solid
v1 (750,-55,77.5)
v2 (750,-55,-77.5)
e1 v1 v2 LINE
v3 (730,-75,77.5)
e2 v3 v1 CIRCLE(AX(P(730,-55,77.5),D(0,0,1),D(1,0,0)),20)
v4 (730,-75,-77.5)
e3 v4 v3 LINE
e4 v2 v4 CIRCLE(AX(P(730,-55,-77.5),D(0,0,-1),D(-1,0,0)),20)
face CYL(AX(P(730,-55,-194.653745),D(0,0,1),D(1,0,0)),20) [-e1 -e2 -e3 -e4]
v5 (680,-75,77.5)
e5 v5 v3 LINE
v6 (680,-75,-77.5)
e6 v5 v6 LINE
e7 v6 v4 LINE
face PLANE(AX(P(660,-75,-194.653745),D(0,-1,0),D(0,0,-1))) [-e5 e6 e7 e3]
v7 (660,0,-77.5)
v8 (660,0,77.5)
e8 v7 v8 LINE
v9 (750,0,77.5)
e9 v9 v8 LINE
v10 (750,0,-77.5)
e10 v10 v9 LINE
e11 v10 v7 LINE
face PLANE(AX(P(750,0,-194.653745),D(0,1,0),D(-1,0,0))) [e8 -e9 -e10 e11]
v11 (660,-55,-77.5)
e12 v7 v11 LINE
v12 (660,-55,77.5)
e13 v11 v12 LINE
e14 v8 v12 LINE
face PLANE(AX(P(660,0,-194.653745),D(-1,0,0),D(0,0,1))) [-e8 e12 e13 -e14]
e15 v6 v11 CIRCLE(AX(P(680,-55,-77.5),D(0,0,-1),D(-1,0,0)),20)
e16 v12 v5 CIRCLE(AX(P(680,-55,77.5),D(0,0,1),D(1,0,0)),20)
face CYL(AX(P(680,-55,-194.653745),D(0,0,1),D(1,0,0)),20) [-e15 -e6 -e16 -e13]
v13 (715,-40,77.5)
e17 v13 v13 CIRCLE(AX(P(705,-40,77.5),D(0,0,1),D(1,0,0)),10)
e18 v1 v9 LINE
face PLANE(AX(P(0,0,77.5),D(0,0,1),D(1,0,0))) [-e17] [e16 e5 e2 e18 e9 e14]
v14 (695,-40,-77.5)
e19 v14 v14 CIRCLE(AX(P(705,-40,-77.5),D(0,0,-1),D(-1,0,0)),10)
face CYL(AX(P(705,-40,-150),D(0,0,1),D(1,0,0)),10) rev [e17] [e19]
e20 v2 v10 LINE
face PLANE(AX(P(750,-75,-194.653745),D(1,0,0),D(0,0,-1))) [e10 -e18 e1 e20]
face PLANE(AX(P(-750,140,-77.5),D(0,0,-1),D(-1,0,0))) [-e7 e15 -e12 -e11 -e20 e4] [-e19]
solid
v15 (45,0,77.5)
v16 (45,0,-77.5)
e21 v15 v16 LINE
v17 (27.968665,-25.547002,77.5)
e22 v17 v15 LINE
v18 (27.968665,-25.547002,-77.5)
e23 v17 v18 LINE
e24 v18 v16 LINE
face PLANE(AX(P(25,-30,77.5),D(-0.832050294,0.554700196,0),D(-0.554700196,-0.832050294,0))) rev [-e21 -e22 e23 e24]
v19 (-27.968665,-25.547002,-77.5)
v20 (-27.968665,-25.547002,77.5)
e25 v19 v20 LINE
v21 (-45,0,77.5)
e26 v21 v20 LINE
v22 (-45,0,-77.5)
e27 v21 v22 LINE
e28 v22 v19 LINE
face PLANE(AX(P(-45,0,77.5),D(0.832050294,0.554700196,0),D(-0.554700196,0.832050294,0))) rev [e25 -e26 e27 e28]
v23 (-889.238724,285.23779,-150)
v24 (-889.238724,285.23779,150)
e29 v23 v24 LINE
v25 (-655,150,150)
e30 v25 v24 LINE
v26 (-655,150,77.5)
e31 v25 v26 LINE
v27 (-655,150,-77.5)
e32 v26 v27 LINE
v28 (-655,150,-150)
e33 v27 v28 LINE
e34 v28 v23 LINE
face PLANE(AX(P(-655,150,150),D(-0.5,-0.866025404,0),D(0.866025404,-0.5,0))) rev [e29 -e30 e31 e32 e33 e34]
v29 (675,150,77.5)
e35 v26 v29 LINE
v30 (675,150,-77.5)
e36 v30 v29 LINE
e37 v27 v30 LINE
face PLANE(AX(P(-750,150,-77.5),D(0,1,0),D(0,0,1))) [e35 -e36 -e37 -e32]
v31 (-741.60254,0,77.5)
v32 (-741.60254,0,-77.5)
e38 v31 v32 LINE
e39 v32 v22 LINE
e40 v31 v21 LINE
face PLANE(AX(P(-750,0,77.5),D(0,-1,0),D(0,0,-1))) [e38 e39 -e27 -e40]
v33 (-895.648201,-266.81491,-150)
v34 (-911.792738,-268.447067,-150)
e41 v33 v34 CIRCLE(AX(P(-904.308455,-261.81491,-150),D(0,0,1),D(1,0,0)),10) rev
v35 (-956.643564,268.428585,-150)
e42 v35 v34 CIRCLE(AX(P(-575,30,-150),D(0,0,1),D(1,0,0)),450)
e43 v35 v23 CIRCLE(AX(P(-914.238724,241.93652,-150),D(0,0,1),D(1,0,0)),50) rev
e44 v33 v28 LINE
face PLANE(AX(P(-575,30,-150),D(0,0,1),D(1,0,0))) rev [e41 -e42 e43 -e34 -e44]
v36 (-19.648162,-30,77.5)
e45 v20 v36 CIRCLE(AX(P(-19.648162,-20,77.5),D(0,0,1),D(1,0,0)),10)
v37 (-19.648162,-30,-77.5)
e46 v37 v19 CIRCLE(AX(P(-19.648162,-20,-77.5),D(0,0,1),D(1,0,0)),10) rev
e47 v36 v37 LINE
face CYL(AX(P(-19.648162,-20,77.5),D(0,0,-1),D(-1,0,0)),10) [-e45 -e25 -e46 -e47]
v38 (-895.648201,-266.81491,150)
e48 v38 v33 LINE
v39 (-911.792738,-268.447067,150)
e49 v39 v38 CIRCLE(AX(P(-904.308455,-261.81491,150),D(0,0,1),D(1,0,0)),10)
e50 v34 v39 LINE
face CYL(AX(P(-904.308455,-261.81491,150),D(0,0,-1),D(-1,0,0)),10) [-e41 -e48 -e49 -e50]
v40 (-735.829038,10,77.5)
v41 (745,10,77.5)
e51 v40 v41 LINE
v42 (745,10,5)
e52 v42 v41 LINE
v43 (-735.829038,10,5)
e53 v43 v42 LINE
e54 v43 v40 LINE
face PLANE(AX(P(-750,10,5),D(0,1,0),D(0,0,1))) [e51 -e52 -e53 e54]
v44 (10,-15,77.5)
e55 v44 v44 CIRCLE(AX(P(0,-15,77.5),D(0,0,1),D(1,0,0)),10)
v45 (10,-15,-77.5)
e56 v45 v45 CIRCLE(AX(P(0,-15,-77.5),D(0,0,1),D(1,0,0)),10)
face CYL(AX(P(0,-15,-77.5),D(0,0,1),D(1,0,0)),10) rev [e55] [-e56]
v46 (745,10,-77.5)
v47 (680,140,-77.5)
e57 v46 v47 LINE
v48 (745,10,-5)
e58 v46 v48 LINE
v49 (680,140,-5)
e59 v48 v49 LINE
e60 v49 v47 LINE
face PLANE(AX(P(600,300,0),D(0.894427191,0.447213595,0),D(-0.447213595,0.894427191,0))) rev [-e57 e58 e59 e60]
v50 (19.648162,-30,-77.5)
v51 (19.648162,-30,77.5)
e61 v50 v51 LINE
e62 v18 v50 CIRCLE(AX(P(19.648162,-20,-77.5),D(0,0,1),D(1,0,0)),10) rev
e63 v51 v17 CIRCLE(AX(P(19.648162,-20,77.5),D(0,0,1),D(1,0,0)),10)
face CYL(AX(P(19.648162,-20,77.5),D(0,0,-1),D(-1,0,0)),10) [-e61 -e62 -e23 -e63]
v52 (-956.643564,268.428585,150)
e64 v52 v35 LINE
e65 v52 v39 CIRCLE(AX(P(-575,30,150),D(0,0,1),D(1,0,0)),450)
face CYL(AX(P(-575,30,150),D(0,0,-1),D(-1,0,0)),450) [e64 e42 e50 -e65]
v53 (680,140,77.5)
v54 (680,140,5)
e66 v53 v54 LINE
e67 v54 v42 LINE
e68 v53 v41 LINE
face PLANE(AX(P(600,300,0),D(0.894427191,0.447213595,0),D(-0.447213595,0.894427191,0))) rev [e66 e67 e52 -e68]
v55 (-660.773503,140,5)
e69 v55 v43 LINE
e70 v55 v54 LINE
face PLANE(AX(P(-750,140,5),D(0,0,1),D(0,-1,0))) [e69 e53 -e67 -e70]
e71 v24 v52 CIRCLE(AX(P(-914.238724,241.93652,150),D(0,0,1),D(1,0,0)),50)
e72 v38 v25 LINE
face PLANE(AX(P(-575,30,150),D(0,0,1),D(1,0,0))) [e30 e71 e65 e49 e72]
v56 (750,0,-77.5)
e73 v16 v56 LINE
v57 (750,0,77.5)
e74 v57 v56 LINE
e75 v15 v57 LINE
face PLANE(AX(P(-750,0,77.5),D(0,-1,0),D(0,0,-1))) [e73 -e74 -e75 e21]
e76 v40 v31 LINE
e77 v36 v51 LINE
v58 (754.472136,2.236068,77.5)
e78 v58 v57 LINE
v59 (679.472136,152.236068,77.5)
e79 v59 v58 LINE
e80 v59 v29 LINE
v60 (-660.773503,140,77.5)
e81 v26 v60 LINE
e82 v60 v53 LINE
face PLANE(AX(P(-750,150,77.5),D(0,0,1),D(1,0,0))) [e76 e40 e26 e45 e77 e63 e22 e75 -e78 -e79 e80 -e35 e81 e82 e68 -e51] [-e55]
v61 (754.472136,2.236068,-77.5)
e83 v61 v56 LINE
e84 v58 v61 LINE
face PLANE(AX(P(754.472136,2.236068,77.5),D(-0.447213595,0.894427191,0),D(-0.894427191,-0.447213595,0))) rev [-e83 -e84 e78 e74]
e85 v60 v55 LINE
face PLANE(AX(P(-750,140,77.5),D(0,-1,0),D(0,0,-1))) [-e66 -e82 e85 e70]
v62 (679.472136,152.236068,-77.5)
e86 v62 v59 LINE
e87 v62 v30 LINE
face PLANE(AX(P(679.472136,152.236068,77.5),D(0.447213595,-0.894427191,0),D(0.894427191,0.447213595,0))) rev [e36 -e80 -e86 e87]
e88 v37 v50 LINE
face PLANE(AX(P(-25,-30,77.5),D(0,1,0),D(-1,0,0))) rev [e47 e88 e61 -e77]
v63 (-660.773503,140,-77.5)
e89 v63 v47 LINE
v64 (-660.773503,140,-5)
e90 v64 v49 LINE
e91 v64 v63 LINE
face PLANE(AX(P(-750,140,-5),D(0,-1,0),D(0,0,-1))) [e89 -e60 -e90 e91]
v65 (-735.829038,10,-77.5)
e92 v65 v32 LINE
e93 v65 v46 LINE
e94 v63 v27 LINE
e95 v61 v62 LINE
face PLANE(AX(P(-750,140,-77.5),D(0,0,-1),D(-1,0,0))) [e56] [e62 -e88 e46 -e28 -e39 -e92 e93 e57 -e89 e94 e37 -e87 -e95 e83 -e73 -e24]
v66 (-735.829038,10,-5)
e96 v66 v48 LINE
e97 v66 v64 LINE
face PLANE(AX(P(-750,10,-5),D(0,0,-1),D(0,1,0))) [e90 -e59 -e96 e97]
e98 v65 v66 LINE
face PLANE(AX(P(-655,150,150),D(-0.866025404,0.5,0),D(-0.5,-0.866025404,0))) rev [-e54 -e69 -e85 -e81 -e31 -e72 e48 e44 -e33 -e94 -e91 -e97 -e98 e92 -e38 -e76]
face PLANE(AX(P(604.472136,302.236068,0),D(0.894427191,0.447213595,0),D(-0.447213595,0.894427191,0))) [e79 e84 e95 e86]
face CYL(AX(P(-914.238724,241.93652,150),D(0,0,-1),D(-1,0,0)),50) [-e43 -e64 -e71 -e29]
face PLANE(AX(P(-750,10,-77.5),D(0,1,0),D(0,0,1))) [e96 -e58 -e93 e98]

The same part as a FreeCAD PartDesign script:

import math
import FreeCAD as App
import Part
import Sketcher
from FreeCAD import Vector
Q = App.Units.Quantity


def edges_at(feature, points):
    """Names of the edges that pass closest to the given points."""
    edges = feature.Shape.Edges
    near = lambda p: min(range(len(edges)), key=lambda i: edges[i].distToShape(Part.Vertex(*p))[0])
    return sorted({f"Edge{near(p) + 1}" for p in points})

doc = App.newDocument("Part")
params = doc.addObject("Spreadsheet::Sheet", "Params")
for row, (alias, value) in enumerate([
    ("sketch1_width", "90 mm"),
    ("sketch1_width2", "50 mm"),
    ("pad1_length", "155 mm"),
    ("fillet_radius", "10 mm"),
    ("sketch2_diameter", "20 mm"),
    ("sketch3_width", "10 mm"),
    ("sketch3_width2", "130 mm"),
    ("sketch3_height", "155 mm"),
    ("sketch3_height2", "72.5 mm"),
    ("pad2_length", "750 mm"),
    ("pad2_length2", "750 mm"),
    ("sketch4_radius", "450 mm"),
    ("pad3_length", "300 mm"),
    ("fillet2_radius", "50 mm"),
    ("fillet3_radius", "10 mm"),
    ("sketch5_width", "75 mm"),
    ("sketch5_height", "150 mm"),
    ("pocket2_length", "300 mm"),
    ("sketch6_width", "155 mm"),
    ("pad4_length", "5 mm"),
    ("sketch7_width", "90 mm"),
    ("sketch7_height", "75 mm"),
    ("pad5_length", "155 mm"),
    ("fillet4_radius", "20 mm"),
    ("sketch8_diameter", "20 mm"),
], start=1):
    params.set(f"A{row}", alias)
    params.set(f"B{row}", "=" + value)
    params.setAlias(f"B{row}", alias)

body = doc.addObject("PartDesign::Body", "Body")

sketch1 = doc.addObject("Sketcher::SketchObject", "Sketch")
body.addObject(sketch1)
sketch1.AttachmentSupport = (doc.XY_Plane, [""])
sketch1.MapMode = "FlatFace"
sketch1.addGeometry(Part.LineSegment(Vector(45, 0, 0), Vector(-45, 0, 0)), False)
sketch1.addGeometry(Part.LineSegment(Vector(-45, 0, 0), Vector(-25, -30, 0)), False)
sketch1.addGeometry(Part.LineSegment(Vector(-25, -30, 0), Vector(25, -30, 0)), False)
sketch1.addGeometry(Part.LineSegment(Vector(25, -30, 0), Vector(45, 0, 0)), False)
sketch1.addConstraint(Sketcher.Constraint("Coincident", 0, 2, 1, 1))
sketch1.addConstraint(Sketcher.Constraint("Coincident", 1, 2, 2, 1))
sketch1.addConstraint(Sketcher.Constraint("Coincident", 2, 2, 3, 1))
sketch1.addConstraint(Sketcher.Constraint("Coincident", 3, 2, 0, 1))
sketch1.addConstraint(Sketcher.Constraint("Horizontal", 0))
sketch1.addConstraint(Sketcher.Constraint("Horizontal", 2))
sketch1.addConstraint(Sketcher.Constraint("Symmetric", 0, 2, 3, 2, -1, 1))
sketch1.addConstraint(Sketcher.Constraint("Equal", 1, 3))
sketch1.addConstraint(Sketcher.Constraint("DistanceX", 0, 2, 0, 1, Q("90 mm")))
sketch1.addConstraint(Sketcher.Constraint("DistanceX", 2, 1, 2, 2, Q("50 mm")))
sketch1.addConstraint(Sketcher.Constraint("DistanceY", 1, 2, -1, 1, Q("30 mm")))
sketch1.setExpression("Constraints[8]", "Params.sketch1_width")
sketch1.setExpression("Constraints[9]", "Params.sketch1_width2")
pad1 = doc.addObject("PartDesign::Pad", "Pad")
body.addObject(pad1)
pad1.Profile = sketch1
pad1.setExpression("Length", "Params.pad1_length")
pad1.Midplane = True
doc.recompute()

fillet = doc.addObject("PartDesign::Fillet", "Fillet")
body.addObject(fillet)
fillet.Base = (pad1, edges_at(pad1, [(25, -30, 0), (-25, -30, 0)]))
fillet.setExpression("Radius", "Params.fillet_radius")

sketch2 = doc.addObject("Sketcher::SketchObject", "Sketch001")
body.addObject(sketch2)
sketch2.AttachmentSupport = (doc.XY_Plane, [""])
sketch2.MapMode = "FlatFace"
sketch2.AttachmentOffset = App.Placement(Vector(0, 0, 77.5), App.Rotation())
sketch2.addGeometry(Part.Circle(Vector(0, -15, 0), Vector(0, 0, 1), 10), False)
sketch2.addConstraint(Sketcher.Constraint("PointOnObject", 0, 3, -2))
sketch2.addConstraint(Sketcher.Constraint("Diameter", 0, Q("20 mm")))
sketch2.addConstraint(Sketcher.Constraint("DistanceY", 0, 3, -1, 1, Q("15 mm")))
sketch2.setExpression("Constraints[1]", "Params.sketch2_diameter")
pocket1 = doc.addObject("PartDesign::Pocket", "Pocket")
body.addObject(pocket1)
pocket1.Profile = sketch2
pocket1.Type = "ThroughAll"

sketch3 = doc.addObject("Sketcher::SketchObject", "Sketch002")
body.addObject(sketch3)
sketch3.AttachmentSupport = (doc.YZ_Plane, [""])
sketch3.MapMode = "FlatFace"
sketch3.addGeometry(Part.LineSegment(Vector(0, 77.5, 0), Vector(0, -77.5, 0)), False)
sketch3.addGeometry(Part.LineSegment(Vector(0, -77.5, 0), Vector(10, -77.5, 0)), False)
sketch3.addGeometry(Part.LineSegment(Vector(10, -77.5, 0), Vector(10, -5, 0)), False)
sketch3.addGeometry(Part.LineSegment(Vector(10, -5, 0), Vector(140, -5, 0)), False)
sketch3.addGeometry(Part.LineSegment(Vector(140, -5, 0), Vector(140, -77.5, 0)), False)
sketch3.addGeometry(Part.LineSegment(Vector(140, -77.5, 0), Vector(150, -77.5, 0)), False)
sketch3.addGeometry(Part.LineSegment(Vector(150, -77.5, 0), Vector(150, 77.5, 0)), False)
sketch3.addGeometry(Part.LineSegment(Vector(150, 77.5, 0), Vector(140, 77.5, 0)), False)
sketch3.addGeometry(Part.LineSegment(Vector(140, 77.5, 0), Vector(140, 5, 0)), False)
sketch3.addGeometry(Part.LineSegment(Vector(140, 5, 0), Vector(10, 5, 0)), False)
sketch3.addGeometry(Part.LineSegment(Vector(10, 5, 0), Vector(10, 77.5, 0)), False)
sketch3.addGeometry(Part.LineSegment(Vector(10, 77.5, 0), Vector(0, 77.5, 0)), False)
sketch3.addConstraint(Sketcher.Constraint("Coincident", 0, 2, 1, 1))
sketch3.addConstraint(Sketcher.Constraint("Coincident", 1, 2, 2, 1))
sketch3.addConstraint(Sketcher.Constraint("Coincident", 2, 2, 3, 1))
sketch3.addConstraint(Sketcher.Constraint("Coincident", 3, 2, 4, 1))
sketch3.addConstraint(Sketcher.Constraint("Coincident", 4, 2, 5, 1))
sketch3.addConstraint(Sketcher.Constraint("Coincident", 5, 2, 6, 1))
sketch3.addConstraint(Sketcher.Constraint("Coincident", 6, 2, 7, 1))
sketch3.addConstraint(Sketcher.Constraint("Coincident", 7, 2, 8, 1))
sketch3.addConstraint(Sketcher.Constraint("Coincident", 8, 2, 9, 1))
sketch3.addConstraint(Sketcher.Constraint("Coincident", 9, 2, 10, 1))
sketch3.addConstraint(Sketcher.Constraint("Coincident", 10, 2, 11, 1))
sketch3.addConstraint(Sketcher.Constraint("Coincident", 11, 2, 0, 1))
sketch3.addConstraint(Sketcher.Constraint("Vertical", 0))
sketch3.addConstraint(Sketcher.Constraint("Horizontal", 1))
sketch3.addConstraint(Sketcher.Constraint("Vertical", 2))
sketch3.addConstraint(Sketcher.Constraint("Horizontal", 3))
sketch3.addConstraint(Sketcher.Constraint("Vertical", 4))
sketch3.addConstraint(Sketcher.Constraint("Horizontal", 5))
sketch3.addConstraint(Sketcher.Constraint("Vertical", 6))
sketch3.addConstraint(Sketcher.Constraint("Horizontal", 7))
sketch3.addConstraint(Sketcher.Constraint("Vertical", 8))
sketch3.addConstraint(Sketcher.Constraint("Horizontal", 9))
sketch3.addConstraint(Sketcher.Constraint("Vertical", 10))
sketch3.addConstraint(Sketcher.Constraint("Horizontal", 11))
sketch3.addConstraint(Sketcher.Constraint("Symmetric", 0, 2, 11, 2, -1, 1))
sketch3.addConstraint(Sketcher.Constraint("Symmetric", 4, 2, 7, 2, -1))
sketch3.addConstraint(Sketcher.Constraint("Symmetric", 2, 2, 9, 2, -1))
sketch3.addConstraint(Sketcher.Constraint("Horizontal", 1, 2, 4, 2))
sketch3.addConstraint(Sketcher.Constraint("Equal", 1, 5))
sketch3.addConstraint(Sketcher.Constraint("DistanceX", 1, 1, 1, 2, Q("10 mm")))
sketch3.addConstraint(Sketcher.Constraint("DistanceX", 3, 1, 3, 2, Q("130 mm")))
sketch3.addConstraint(Sketcher.Constraint("DistanceY", 0, 2, 0, 1, Q("155 mm")))
sketch3.addConstraint(Sketcher.Constraint("DistanceY", 2, 1, 2, 2, Q("72.5 mm")))
sketch3.setExpression("Constraints[29]", "Params.sketch3_width")
sketch3.setExpression("Constraints[30]", "Params.sketch3_width2")
sketch3.setExpression("Constraints[31]", "Params.sketch3_height")
sketch3.setExpression("Constraints[32]", "Params.sketch3_height2")
pad2 = doc.addObject("PartDesign::Pad", "Pad001")
body.addObject(pad2)
pad2.Profile = sketch3
pad2.Type = "TwoLengths"
pad2.setExpression("Length", "Params.pad2_length")
pad2.setExpression("Length2", "Params.pad2_length2")

sketch4 = doc.addObject("Sketcher::SketchObject", "Sketch003")
body.addObject(sketch4)
sketch4.AttachmentSupport = (doc.XY_Plane, [""])
sketch4.MapMode = "FlatFace"
sketch4.addGeometry(Part.LineSegment(Vector(-655, 150, 0), Vector(-928.797964, 308.077328, 0)), False)
sketch4.addGeometry(Part.ArcOfCircle(Part.Circle(Vector(-575, 30, 0), Vector(0, 0, 1), 450), math.radians(141.833441), math.radians(223.304015)), False)
sketch4.addGeometry(Part.LineSegment(Vector(-902.476115, -278.641206, 0), Vector(-655, 150, 0)), False)
sketch4.addConstraint(Sketcher.Constraint("Coincident", 0, 2, 1, 1))
sketch4.addConstraint(Sketcher.Constraint("Coincident", 1, 2, 2, 1))
sketch4.addConstraint(Sketcher.Constraint("Coincident", 2, 2, 0, 1))
sketch4.addConstraint(Sketcher.Constraint("Perpendicular", 0, 2))
sketch4.addConstraint(Sketcher.Constraint("Radius", 1, Q("450 mm")))
sketch4.addConstraint(Sketcher.Constraint("Angle", 0, Q("150 deg")))
sketch4.addConstraint(Sketcher.Constraint("DistanceX", 1, 3, -1, 1, Q("575 mm")))
sketch4.addConstraint(Sketcher.Constraint("DistanceY", -1, 1, 1, 3, Q("30 mm")))
sketch4.addConstraint(Sketcher.Constraint("DistanceX", 2, 2, -1, 1, Q("655 mm")))
sketch4.addConstraint(Sketcher.Constraint("DistanceY", -1, 1, 2, 2, Q("150 mm")))
sketch4.setExpression("Constraints[4]", "Params.sketch4_radius")
pad3 = doc.addObject("PartDesign::Pad", "Pad002")
body.addObject(pad3)
pad3.Profile = sketch4
pad3.setExpression("Length", "Params.pad3_length")
pad3.Midplane = True
doc.recompute()

fillet2 = doc.addObject("PartDesign::Fillet", "Fillet001")
body.addObject(fillet2)
fillet2.Base = (pad3, edges_at(pad3, [(-928.798, 308.077, 0)]))
fillet2.setExpression("Radius", "Params.fillet2_radius")
doc.recompute()

fillet3 = doc.addObject("PartDesign::Fillet", "Fillet002")
body.addObject(fillet3)
fillet3.Base = (fillet2, edges_at(fillet2, [(-902.476, -278.641, 0)]))
fillet3.setExpression("Radius", "Params.fillet3_radius")

sketch5 = doc.addObject("Sketcher::SketchObject", "Sketch004")
body.addObject(sketch5)
sketch5.AttachmentSupport = (doc.XY_Plane, [""])
sketch5.MapMode = "FlatFace"
sketch5.AttachmentOffset = App.Placement(Vector(0, 0, 5), App.Rotation())
sketch5.addGeometry(Part.LineSegment(Vector(675, 150, 0), Vector(750, 0, 0)), False)
sketch5.addGeometry(Part.LineSegment(Vector(750, 0, 0), Vector(750, 150, 0)), False)
sketch5.addGeometry(Part.LineSegment(Vector(750, 150, 0), Vector(675, 150, 0)), False)
sketch5.addConstraint(Sketcher.Constraint("Coincident", 0, 2, 1, 1))
sketch5.addConstraint(Sketcher.Constraint("Coincident", 1, 2, 2, 1))
sketch5.addConstraint(Sketcher.Constraint("Coincident", 2, 2, 0, 1))
sketch5.addConstraint(Sketcher.Constraint("Vertical", 1))
sketch5.addConstraint(Sketcher.Constraint("Horizontal", 2))
sketch5.addConstraint(Sketcher.Constraint("PointOnObject", 0, 2, -1))
sketch5.addConstraint(Sketcher.Constraint("DistanceX", 2, 2, 2, 1, Q("75 mm")))
sketch5.addConstraint(Sketcher.Constraint("DistanceY", 1, 1, 1, 2, Q("150 mm")))
sketch5.addConstraint(Sketcher.Constraint("DistanceX", -1, 1, 0, 2, Q("750 mm")))
sketch5.setExpression("Constraints[6]", "Params.sketch5_width")
sketch5.setExpression("Constraints[7]", "Params.sketch5_height")
pocket2 = doc.addObject("PartDesign::Pocket", "Pocket001")
body.addObject(pocket2)
pocket2.Profile = sketch5
pocket2.setExpression("Length", "Params.pocket2_length")
pocket2.Midplane = True

sketch6 = doc.addObject("Sketcher::SketchObject", "Sketch005")
body.addObject(sketch6)
sketch6.Placement = App.Placement(Vector(600, 300, 0), App.Rotation(Vector(0, 0, -1), Vector(-0.447213595, 0.894427191, 0), Vector(0.894427191, 0.447213595, 0), "ZXY"))
sketch6.addGeometry(Part.LineSegment(Vector(-77.5, -167.705098, 0), Vector(-77.5, -335.410196, 0)), False)
sketch6.addGeometry(Part.LineSegment(Vector(-77.5, -335.410196, 0), Vector(77.5, -335.410196, 0)), False)
sketch6.addGeometry(Part.LineSegment(Vector(77.5, -335.410196, 0), Vector(77.5, -167.705098, 0)), False)
sketch6.addGeometry(Part.LineSegment(Vector(77.5, -167.705098, 0), Vector(-77.5, -167.705098, 0)), False)
sketch6.addConstraint(Sketcher.Constraint("Coincident", 0, 2, 1, 1))
sketch6.addConstraint(Sketcher.Constraint("Coincident", 1, 2, 2, 1))
sketch6.addConstraint(Sketcher.Constraint("Coincident", 2, 2, 3, 1))
sketch6.addConstraint(Sketcher.Constraint("Coincident", 3, 2, 0, 1))
sketch6.addConstraint(Sketcher.Constraint("Vertical", 0))
sketch6.addConstraint(Sketcher.Constraint("Horizontal", 1))
sketch6.addConstraint(Sketcher.Constraint("Vertical", 2))
sketch6.addConstraint(Sketcher.Constraint("Horizontal", 3))
sketch6.addConstraint(Sketcher.Constraint("DistanceX", 1, 1, 1, 2, Q("155 mm")))
sketch6.addConstraint(Sketcher.Constraint("DistanceX", 0, 2, -1, 1, Q("77.5 mm")))
sketch6.addConstraint(Sketcher.Constraint("DistanceY", 0, 2, 0, 1, Q("167.705098 mm")))
sketch6.addConstraint(Sketcher.Constraint("DistanceY", 2, 2, -1, 1, Q("167.705098 mm")))
sketch6.setExpression("Constraints[8]", "Params.sketch6_width")
pad4 = doc.addObject("PartDesign::Pad", "Pad003")
body.addObject(pad4)
pad4.Profile = sketch6
pad4.setExpression("Length", "Params.pad4_length")
body2 = doc.addObject("PartDesign::Body", "Body001")

sketch7 = doc.addObject("Sketcher::SketchObject", "Sketch006")
body2.addObject(sketch7)
sketch7.AttachmentSupport = (doc.getObject("XY_Plane001"), [""])
sketch7.MapMode = "FlatFace"
sketch7.AttachmentOffset = App.Placement(Vector(0, 0, 77.5), App.Rotation())
sketch7.addGeometry(Part.LineSegment(Vector(660, 0, 0), Vector(660, -75, 0)), False)
sketch7.addGeometry(Part.LineSegment(Vector(660, -75, 0), Vector(750, -75, 0)), False)
sketch7.addGeometry(Part.LineSegment(Vector(750, -75, 0), Vector(750, 0, 0)), False)
sketch7.addGeometry(Part.LineSegment(Vector(750, 0, 0), Vector(660, 0, 0)), False)
sketch7.addConstraint(Sketcher.Constraint("Coincident", 0, 2, 1, 1))
sketch7.addConstraint(Sketcher.Constraint("Coincident", 1, 2, 2, 1))
sketch7.addConstraint(Sketcher.Constraint("Coincident", 2, 2, 3, 1))
sketch7.addConstraint(Sketcher.Constraint("Coincident", 3, 2, 0, 1))
sketch7.addConstraint(Sketcher.Constraint("Vertical", 0))
sketch7.addConstraint(Sketcher.Constraint("Horizontal", 1))
sketch7.addConstraint(Sketcher.Constraint("Vertical", 2))
sketch7.addConstraint(Sketcher.Constraint("Horizontal", 3))
sketch7.addConstraint(Sketcher.Constraint("PointOnObject", 2, 2, -1))
sketch7.addConstraint(Sketcher.Constraint("DistanceX", 1, 1, 1, 2, Q("90 mm")))
sketch7.addConstraint(Sketcher.Constraint("DistanceY", 0, 2, 0, 1, Q("75 mm")))
sketch7.addConstraint(Sketcher.Constraint("DistanceX", -1, 1, 0, 2, Q("660 mm")))
sketch7.setExpression("Constraints[9]", "Params.sketch7_width")
sketch7.setExpression("Constraints[10]", "Params.sketch7_height")
pad5 = doc.addObject("PartDesign::Pad", "Pad004")
body2.addObject(pad5)
pad5.Profile = sketch7
pad5.setExpression("Length", "Params.pad5_length")
pad5.Reversed = True
doc.recompute()

fillet4 = doc.addObject("PartDesign::Fillet", "Fillet003")
body2.addObject(fillet4)
fillet4.Base = (pad5, edges_at(pad5, [(660, -75, 0), (750, -75, 0)]))
fillet4.setExpression("Radius", "Params.fillet4_radius")

sketch8 = doc.addObject("Sketcher::SketchObject", "Sketch007")
body2.addObject(sketch8)
sketch8.AttachmentSupport = (doc.getObject("XY_Plane001"), [""])
sketch8.MapMode = "FlatFace"
sketch8.AttachmentOffset = App.Placement(Vector(0, 0, 77.5), App.Rotation())
sketch8.addGeometry(Part.Circle(Vector(705, -40, 0), Vector(0, 0, 1), 10), False)
sketch8.addConstraint(Sketcher.Constraint("Diameter", 0, Q("20 mm")))
sketch8.addConstraint(Sketcher.Constraint("DistanceX", -1, 1, 0, 3, Q("705 mm")))
sketch8.addConstraint(Sketcher.Constraint("DistanceY", 0, 3, -1, 1, Q("40 mm")))
sketch8.setExpression("Constraints[0]", "Params.sketch8_diameter")
pocket3 = doc.addObject("PartDesign::Pocket", "Pocket002")
body2.addObject(pocket3)
pocket3.Profile = sketch8
pocket3.Type = "ThroughAll"

doc.recompute()
